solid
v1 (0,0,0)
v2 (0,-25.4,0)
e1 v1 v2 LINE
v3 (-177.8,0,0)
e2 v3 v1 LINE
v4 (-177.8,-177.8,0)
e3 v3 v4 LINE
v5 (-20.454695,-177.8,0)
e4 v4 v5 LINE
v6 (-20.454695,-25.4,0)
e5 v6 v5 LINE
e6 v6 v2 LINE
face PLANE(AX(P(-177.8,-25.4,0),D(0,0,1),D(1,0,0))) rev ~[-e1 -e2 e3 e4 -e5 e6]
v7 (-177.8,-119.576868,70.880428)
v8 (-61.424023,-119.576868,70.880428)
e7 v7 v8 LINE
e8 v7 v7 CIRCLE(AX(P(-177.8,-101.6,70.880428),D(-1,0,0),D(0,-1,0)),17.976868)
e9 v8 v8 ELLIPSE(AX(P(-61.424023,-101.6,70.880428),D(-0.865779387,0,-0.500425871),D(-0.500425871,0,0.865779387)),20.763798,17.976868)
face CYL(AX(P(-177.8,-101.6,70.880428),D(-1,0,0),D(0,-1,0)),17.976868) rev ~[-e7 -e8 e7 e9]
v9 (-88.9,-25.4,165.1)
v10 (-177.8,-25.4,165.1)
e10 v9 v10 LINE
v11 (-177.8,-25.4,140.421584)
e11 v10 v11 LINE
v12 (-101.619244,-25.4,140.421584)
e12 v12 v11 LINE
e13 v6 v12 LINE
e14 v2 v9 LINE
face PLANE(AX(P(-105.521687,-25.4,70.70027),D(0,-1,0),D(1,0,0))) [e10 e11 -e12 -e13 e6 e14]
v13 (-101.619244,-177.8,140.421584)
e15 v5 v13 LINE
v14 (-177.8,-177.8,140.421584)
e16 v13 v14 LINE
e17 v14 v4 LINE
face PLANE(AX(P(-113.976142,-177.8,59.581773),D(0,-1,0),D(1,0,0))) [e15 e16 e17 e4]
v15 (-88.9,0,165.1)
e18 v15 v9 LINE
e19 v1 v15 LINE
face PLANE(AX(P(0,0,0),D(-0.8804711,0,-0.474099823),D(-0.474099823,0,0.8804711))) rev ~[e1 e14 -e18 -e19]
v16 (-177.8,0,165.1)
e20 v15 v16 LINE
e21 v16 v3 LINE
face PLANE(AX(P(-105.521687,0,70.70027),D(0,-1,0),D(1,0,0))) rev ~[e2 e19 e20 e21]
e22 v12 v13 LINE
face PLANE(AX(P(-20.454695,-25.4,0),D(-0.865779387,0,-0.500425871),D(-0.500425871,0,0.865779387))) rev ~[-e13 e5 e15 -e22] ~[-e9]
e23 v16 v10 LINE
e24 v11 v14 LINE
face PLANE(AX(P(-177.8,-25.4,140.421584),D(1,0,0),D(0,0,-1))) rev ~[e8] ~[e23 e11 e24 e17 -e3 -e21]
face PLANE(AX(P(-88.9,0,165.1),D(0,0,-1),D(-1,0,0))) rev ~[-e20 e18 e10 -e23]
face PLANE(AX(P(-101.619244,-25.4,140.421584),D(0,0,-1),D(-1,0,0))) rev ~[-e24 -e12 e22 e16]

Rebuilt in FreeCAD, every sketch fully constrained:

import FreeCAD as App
import Part
import Sketcher
Q = App.Units.Quantity

doc = App.newDocument("Part")
body = doc.addObject("PartDesign::Body", "Body")

sketch1 = body.newObject("Sketcher::SketchObject", "Sketch")
sketch1.AttachmentSupport = (doc.getObject("XZ_Plane"), [""])
sketch1.MapMode = "FlatFace"
sketch1.addGeometry(Part.LineSegment(App.Vector(-178, 0, 0), App.Vector(0, 0, 0)), False)
sketch1.addGeometry(Part.LineSegment(App.Vector(0, 0, 0), App.Vector(-89, 165, 0)), False)
sketch1.addGeometry(Part.LineSegment(App.Vector(-89, 165, 0), App.Vector(-178, 165, 0)), False)
sketch1.addGeometry(Part.LineSegment(App.Vector(-178, 165, 0), App.Vector(-178, 0, 0)), False)
sketch1.addConstraint(Sketcher.Constraint("Coincident", 0, 2, 1, 1))
sketch1.addConstraint(Sketcher.Constraint("Coincident", 1, 2, 2, 1))
sketch1.addConstraint(Sketcher.Constraint("Coincident", 2, 2, 3, 1))
sketch1.addConstraint(Sketcher.Constraint("Coincident", 3, 2, 0, 1))
sketch1.addConstraint(Sketcher.Constraint("Horizontal", 0))
sketch1.addConstraint(Sketcher.Constraint("Horizontal", 2))
sketch1.addConstraint(Sketcher.Constraint("Vertical", 3))
sketch1.addConstraint(Sketcher.Constraint("Coincident", 0, 2, -1, 1))
sketch1.addConstraint(Sketcher.Constraint("DistanceX", 0, 1, 0, 2, Q("7 in")))
sketch1.addConstraint(Sketcher.Constraint("DistanceX", 2, 2, 2, 1, Q("3.5 in")))
sketch1.addConstraint(Sketcher.Constraint("DistanceY", 3, 2, 3, 1, Q("6.5 in")))
pad1 = body.newObject("PartDesign::Pad", "Pad")
pad1.Profile = sketch1
pad1.Length = Q("1 in")

sketch2 = body.newObject("Sketcher::SketchObject", "Sketch001")
sketch2.AttachmentSupport = (doc.getObject("XZ_Plane"), [""])
sketch2.MapMode = "FlatFace"
sketch2.AttachmentOffset = App.Placement(App.Vector(0, 0, 1 * 25.4), App.Rotation())
sketch2.addGeometry(Part.LineSegment(App.Vector(-178, 140, 0), App.Vector(-178, 0, 0)), False)
sketch2.addGeometry(Part.LineSegment(App.Vector(-178, 0, 0), App.Vector(-20, 0, 0)), False)
sketch2.addGeometry(Part.LineSegment(App.Vector(-20, 0, 0), App.Vector(-102, 140, 0)), False)
sketch2.addGeometry(Part.LineSegment(App.Vector(-102, 140, 0), App.Vector(-178, 140, 0)), False)
sketch2.addConstraint(Sketcher.Constraint("Coincident", 0, 2, 1, 1))
sketch2.addConstraint(Sketcher.Constraint("Coincident", 1, 2, 2, 1))
sketch2.addConstraint(Sketcher.Constraint("Coincident", 2, 2, 3, 1))
sketch2.addConstraint(Sketcher.Constraint("Coincident", 3, 2, 0, 1))
sketch2.addConstraint(Sketcher.Constraint("Vertical", 0))
sketch2.addConstraint(Sketcher.Constraint("Horizontal", 1))
sketch2.addConstraint(Sketcher.Constraint("Horizontal", 3))
sketch2.addConstraint(Sketcher.Constraint("PointOnObject", 0, 2, -1))
sketch2.addConstraint(Sketcher.Constraint("DistanceX", 0, 2, -1, 1, Q("7 in")))
sketch2.addConstraint(Sketcher.Constraint("DistanceX", 1, 1, 1, 2, Q("157.345305 mm")))
sketch2.addConstraint(Sketcher.Constraint("DistanceX", 3, 2, 3, 1, Q("76.180756 mm")))
sketch2.addConstraint(Sketcher.Constraint("DistanceY", 0, 2, 0, 1, Q("140.421584 mm")))
pad2 = body.newObject("PartDesign::Pad", "Pad001")
pad2.Profile = sketch2
pad2.Length = Q("6 in")

sketch3 = body.newObject("Sketcher::SketchObject", "Sketch002")
sketch3.AttachmentSupport = (doc.getObject("YZ_Plane"), [""])
sketch3.MapMode = "FlatFace"
sketch3.AttachmentOffset = App.Placement(App.Vector(0, 0, -7 * 25.4), App.Rotation())
sketch3.addGeometry(Part.Circle(App.Vector(-102, 71, 0), App.Vector(0, 0, 1), 18), False)
sketch3.addConstraint(Sketcher.Constraint("DistanceX", 0, 3, -1, 1, Q("4 in")))
sketch3.addConstraint(Sketcher.Constraint("Diameter", 0, Q("35.953736 mm")))
sketch3.addConstraint(Sketcher.Constraint("DistanceY", -1, 1, 0, 3, Q("70.880428 mm")))
pocket1 = body.newObject("PartDesign::Pocket", "Pocket")
pocket1.Profile = sketch3
pocket1.Type = "ThroughAll"
pocket1.Reversed = True

doc.recompute()
